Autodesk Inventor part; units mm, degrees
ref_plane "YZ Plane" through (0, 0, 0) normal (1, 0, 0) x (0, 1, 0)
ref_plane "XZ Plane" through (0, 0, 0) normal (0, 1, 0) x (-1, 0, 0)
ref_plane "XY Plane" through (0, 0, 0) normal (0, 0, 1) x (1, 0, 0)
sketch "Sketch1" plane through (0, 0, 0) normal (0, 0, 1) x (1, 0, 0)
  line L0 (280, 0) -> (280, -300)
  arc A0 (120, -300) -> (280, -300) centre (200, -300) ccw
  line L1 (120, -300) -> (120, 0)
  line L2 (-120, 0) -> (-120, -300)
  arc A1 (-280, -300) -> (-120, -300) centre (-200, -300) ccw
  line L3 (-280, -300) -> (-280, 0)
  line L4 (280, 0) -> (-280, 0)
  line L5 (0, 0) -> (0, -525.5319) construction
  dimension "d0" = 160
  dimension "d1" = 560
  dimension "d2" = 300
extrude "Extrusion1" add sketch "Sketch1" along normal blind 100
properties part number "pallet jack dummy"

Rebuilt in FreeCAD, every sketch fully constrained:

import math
import FreeCAD as App
import Part
import Sketcher
from FreeCAD import Vector

doc = App.newDocument("Part")
body = doc.addObject("PartDesign::Body", "Body")
body.AllowCompound = True

# Sketch on XY plane
sketch1 = doc.addObject("Sketcher::SketchObject", "Sketch")
body.addObject(sketch1)
sketch1.AttachmentSupport = (doc.XY_Plane, [""])
sketch1.MapMode = "FlatFace"
sketch1.addGeometry(Part.LineSegment(Vector(-120, -300, 0), Vector(-120, 0, 0)), False)
sketch1.addGeometry(Part.LineSegment(Vector(-120, 0, 0), Vector(-280, 0, 0)), False)
sketch1.addGeometry(Part.LineSegment(Vector(-280, 0, 0), Vector(-280, -300, 0)), False)
sketch1.addGeometry(Part.ArcOfCircle(Part.Circle(Vector(-200, -300, 0), Vector(0, 0, 1), 80), math.radians(180), math.radians(360)), False)
sketch1.addGeometry(Part.LineSegment(Vector(280, -300, 0), Vector(280, 0, 0)), False)
sketch1.addGeometry(Part.LineSegment(Vector(280, 0, 0), Vector(120, 0, 0)), False)
sketch1.addGeometry(Part.LineSegment(Vector(120, 0, 0), Vector(120, -300, 0)), False)
sketch1.addGeometry(Part.ArcOfCircle(Part.Circle(Vector(200, -300, 0), Vector(0, 0, 1), 80), math.radians(180), math.radians(360)), False)
sketch1.addConstraint(Sketcher.Constraint("Coincident", 0, 2, 1, 1))
sketch1.addConstraint(Sketcher.Constraint("Coincident", 1, 2, 2, 1))
sketch1.addConstraint(Sketcher.Constraint("Tangent", 2, 2, 3, 1))
sketch1.addConstraint(Sketcher.Constraint("Tangent", 3, 2, 0, 1))
sketch1.addConstraint(Sketcher.Constraint("Coincident", 4, 2, 5, 1))
sketch1.addConstraint(Sketcher.Constraint("Coincident", 5, 2, 6, 1))
sketch1.addConstraint(Sketcher.Constraint("Tangent", 6, 2, 7, 1))
sketch1.addConstraint(Sketcher.Constraint("Tangent", 7, 2, 4, 1))
sketch1.addConstraint(Sketcher.Constraint("Vertical", 0))
sketch1.addConstraint(Sketcher.Constraint("Horizontal", 1))
sketch1.addConstraint(Sketcher.Constraint("Vertical", 2))
sketch1.addConstraint(Sketcher.Constraint("Vertical", 4))
sketch1.addConstraint(Sketcher.Constraint("Horizontal", 5))
sketch1.addConstraint(Sketcher.Constraint("Vertical", 6))
sketch1.addConstraint(Sketcher.Constraint("Equal", 3, 7))
sketch1.addConstraint(Sketcher.Constraint("Symmetric", 1, 2, 4, 2, -1, 1))
sketch1.addConstraint(Sketcher.Constraint("PointOnObject", 0, 2, -1))
sketch1.addConstraint(Sketcher.Constraint("Horizontal", 3, 3, 7, 3))
sketch1.addConstraint(Sketcher.Constraint("Radius", 3, 80.0))
sketch1.addConstraint(Sketcher.Constraint("DistanceY", 0, 1, 0, 2, 300.0))
sketch1.addConstraint(Sketcher.Constraint("DistanceX", 1, 2, 4, 2, 560.0))
pad1 = doc.addObject("PartDesign::Pad", "Pad")
body.addObject(pad1)
pad1.Profile = sketch1
pad1.Length = 100

doc.recompute()
